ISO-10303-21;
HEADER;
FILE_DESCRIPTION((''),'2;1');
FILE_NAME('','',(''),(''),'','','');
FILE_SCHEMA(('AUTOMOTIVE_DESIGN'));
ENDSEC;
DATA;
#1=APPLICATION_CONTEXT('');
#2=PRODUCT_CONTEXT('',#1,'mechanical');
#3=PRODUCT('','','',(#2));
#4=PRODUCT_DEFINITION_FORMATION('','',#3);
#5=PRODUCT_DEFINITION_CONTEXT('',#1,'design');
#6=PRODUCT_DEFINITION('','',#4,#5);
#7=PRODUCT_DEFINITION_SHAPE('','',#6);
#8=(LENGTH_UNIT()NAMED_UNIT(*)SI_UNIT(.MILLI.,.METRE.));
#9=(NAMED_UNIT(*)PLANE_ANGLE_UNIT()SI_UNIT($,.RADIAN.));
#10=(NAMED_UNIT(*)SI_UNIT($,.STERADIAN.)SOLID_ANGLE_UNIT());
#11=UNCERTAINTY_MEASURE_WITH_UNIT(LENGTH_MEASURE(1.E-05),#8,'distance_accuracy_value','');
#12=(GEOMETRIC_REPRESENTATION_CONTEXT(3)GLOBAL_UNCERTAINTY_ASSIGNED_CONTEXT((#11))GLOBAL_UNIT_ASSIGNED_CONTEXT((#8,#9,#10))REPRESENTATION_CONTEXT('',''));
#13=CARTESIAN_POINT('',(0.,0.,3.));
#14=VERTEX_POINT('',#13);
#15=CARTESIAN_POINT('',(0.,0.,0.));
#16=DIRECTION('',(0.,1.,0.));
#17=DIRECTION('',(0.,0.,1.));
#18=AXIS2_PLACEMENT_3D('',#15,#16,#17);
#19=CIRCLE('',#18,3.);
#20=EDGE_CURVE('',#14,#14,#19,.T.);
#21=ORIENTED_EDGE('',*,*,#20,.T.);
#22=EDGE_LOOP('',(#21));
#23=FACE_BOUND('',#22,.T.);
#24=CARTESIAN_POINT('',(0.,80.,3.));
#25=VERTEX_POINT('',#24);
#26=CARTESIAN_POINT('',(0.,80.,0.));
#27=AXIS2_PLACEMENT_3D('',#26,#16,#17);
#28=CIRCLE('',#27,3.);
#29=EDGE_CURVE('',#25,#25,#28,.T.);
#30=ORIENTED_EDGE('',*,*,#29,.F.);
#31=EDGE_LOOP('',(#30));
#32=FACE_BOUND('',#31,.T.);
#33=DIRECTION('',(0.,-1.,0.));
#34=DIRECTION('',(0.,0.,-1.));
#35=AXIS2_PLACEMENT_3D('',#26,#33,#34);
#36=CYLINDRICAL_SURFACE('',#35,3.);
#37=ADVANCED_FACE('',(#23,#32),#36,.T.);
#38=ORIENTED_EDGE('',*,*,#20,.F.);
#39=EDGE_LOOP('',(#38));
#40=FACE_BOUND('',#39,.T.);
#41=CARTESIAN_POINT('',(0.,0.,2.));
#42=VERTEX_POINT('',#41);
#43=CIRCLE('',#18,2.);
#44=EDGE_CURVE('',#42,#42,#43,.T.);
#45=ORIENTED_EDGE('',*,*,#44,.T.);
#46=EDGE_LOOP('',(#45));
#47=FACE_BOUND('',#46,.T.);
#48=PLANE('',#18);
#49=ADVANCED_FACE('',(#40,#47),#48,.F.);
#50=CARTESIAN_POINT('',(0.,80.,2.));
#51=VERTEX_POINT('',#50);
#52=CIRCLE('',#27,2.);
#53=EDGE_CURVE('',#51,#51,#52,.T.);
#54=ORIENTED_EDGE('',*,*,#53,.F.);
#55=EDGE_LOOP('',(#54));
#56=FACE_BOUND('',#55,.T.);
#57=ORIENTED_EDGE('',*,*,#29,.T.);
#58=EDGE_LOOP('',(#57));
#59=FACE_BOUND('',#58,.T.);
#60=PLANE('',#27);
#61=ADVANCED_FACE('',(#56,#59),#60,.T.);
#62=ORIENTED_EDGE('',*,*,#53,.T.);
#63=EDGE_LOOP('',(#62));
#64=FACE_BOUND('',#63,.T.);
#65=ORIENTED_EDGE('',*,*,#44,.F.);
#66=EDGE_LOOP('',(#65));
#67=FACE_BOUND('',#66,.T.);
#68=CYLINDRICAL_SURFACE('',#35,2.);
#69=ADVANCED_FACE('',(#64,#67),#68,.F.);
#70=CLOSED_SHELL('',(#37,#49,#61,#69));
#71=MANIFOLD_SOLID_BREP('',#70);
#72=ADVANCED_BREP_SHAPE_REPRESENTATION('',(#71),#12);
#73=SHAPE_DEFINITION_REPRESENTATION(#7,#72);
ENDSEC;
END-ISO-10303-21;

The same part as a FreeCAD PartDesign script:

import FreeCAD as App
import Part
import Sketcher
Q = App.Units.Quantity

doc = App.newDocument("Part")
params = doc.addObject("Spreadsheet::Sheet", "Params")
for row, (alias, value) in enumerate([
    ("sketch1_diameter", "6 mm"),
    ("sketch1_diameter2", "4 mm"),
    ("pad1_length", "80 mm"),
], start=1):
    params.set(f"A{row}", alias)
    params.set(f"B{row}", "=" + value)
    params.setAlias(f"B{row}", alias)

body = doc.addObject("PartDesign::Body", "Body")

# Sketch on XZ plane
sketch1 = doc.addObject("Sketcher::SketchObject", "Sketch")
body.addObject(sketch1)
sketch1.AttachmentSupport = (doc.XZ_Plane, [""])
sketch1.MapMode = "FlatFace"
sketch1.addGeometry([
    Part.Circle(App.Vector(0, 0, 0), App.Vector(0, 0, 1), 3),
    Part.Circle(App.Vector(0, 0, 0), App.Vector(0, 0, 1), 2),
], False)
sketch1.addConstraint([
    Sketcher.Constraint("Coincident", 0, 3, -1, 1),
    Sketcher.Constraint("Coincident", 1, 3, -1, 1),
    Sketcher.Constraint("Diameter", 0, Q("6 mm")),
    Sketcher.Constraint("Diameter", 1, Q("4 mm")),
])
sketch1.setExpression("Constraints[2]", "Params.sketch1_diameter")
sketch1.setExpression("Constraints[3]", "Params.sketch1_diameter2")
pad1 = doc.addObject("PartDesign::Pad", "Pad")
body.addObject(pad1)
pad1.Profile = sketch1
pad1.setExpression("Length", "Params.pad1_length")
pad1.Reversed = True

doc.recompute()
